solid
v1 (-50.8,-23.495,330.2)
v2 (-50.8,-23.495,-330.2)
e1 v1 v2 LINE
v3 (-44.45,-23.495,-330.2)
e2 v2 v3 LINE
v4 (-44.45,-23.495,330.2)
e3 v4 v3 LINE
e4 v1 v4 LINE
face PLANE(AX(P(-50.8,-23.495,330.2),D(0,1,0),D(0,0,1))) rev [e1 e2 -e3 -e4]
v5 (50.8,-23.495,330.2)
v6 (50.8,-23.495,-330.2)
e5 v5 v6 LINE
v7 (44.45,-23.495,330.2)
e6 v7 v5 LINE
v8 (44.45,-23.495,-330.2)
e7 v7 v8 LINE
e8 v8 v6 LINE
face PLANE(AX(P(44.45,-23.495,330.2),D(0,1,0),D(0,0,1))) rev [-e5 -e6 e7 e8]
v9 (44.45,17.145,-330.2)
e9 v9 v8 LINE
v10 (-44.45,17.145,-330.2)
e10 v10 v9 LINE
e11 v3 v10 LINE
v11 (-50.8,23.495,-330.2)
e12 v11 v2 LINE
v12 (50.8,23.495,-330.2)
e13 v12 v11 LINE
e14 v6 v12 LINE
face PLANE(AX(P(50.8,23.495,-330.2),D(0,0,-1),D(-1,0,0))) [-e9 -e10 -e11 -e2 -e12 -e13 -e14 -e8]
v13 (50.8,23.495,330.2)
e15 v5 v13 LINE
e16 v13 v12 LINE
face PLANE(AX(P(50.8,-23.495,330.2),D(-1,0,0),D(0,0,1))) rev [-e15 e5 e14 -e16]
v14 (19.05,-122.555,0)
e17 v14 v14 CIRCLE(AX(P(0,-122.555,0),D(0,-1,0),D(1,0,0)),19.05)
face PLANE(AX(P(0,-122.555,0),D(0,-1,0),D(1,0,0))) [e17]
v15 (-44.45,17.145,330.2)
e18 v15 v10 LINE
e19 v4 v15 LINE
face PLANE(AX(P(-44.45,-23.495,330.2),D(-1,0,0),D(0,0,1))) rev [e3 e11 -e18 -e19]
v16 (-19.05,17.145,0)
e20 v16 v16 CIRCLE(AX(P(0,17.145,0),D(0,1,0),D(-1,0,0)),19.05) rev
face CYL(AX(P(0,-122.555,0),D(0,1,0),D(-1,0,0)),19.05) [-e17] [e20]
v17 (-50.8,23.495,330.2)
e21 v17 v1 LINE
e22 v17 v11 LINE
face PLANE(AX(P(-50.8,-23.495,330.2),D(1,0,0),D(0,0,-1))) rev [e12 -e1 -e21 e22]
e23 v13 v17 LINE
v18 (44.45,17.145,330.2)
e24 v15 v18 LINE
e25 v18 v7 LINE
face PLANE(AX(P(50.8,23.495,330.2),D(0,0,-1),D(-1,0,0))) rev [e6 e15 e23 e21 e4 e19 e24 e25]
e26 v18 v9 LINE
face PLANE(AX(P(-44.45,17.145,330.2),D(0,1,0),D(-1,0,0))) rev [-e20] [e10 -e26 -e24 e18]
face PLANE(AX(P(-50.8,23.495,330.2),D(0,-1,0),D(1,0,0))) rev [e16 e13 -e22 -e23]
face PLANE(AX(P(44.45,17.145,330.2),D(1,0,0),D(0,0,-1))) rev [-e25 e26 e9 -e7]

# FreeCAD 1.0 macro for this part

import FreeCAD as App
import Part
import Sketcher

V = App.Vector
Q = App.Units.Quantity

doc = App.newDocument("Part")
body = doc.addObject("PartDesign::Body", "Body")

# Sketch on XY plane
sketch1 = body.newObject("Sketcher::SketchObject", "Sketch")
sketch1.AttachmentSupport = (doc.getObject("XY_Plane"), [""])
sketch1.MapMode = "FlatFace"
sketch1.addGeometry(Part.LineSegment(V(-51, -23, 0), V(-44, -23, 0)), False)
sketch1.addGeometry(Part.LineSegment(V(-44, -23, 0), V(-44, 17, 0)), False)
sketch1.addGeometry(Part.LineSegment(V(-44, 17, 0), V(44, 17, 0)), False)
sketch1.addGeometry(Part.LineSegment(V(44, 17, 0), V(44, -23, 0)), False)
sketch1.addGeometry(Part.LineSegment(V(44, -23, 0), V(51, -23, 0)), False)
sketch1.addGeometry(Part.LineSegment(V(51, -23, 0), V(51, 23, 0)), False)
sketch1.addGeometry(Part.LineSegment(V(51, 23, 0), V(-51, 23, 0)), False)
sketch1.addGeometry(Part.LineSegment(V(-51, 23, 0), V(-51, -23, 0)), False)
sketch1.addConstraint(Sketcher.Constraint("Coincident", 0, 2, 1, 1))
sketch1.addConstraint(Sketcher.Constraint("Coincident", 1, 2, 2, 1))
sketch1.addConstraint(Sketcher.Constraint("Coincident", 2, 2, 3, 1))
sketch1.addConstraint(Sketcher.Constraint("Coincident", 3, 2, 4, 1))
sketch1.addConstraint(Sketcher.Constraint("Coincident", 4, 2, 5, 1))
sketch1.addConstraint(Sketcher.Constraint("Coincident", 5, 2, 6, 1))
sketch1.addConstraint(Sketcher.Constraint("Coincident", 6, 2, 7, 1))
sketch1.addConstraint(Sketcher.Constraint("Coincident", 7, 2, 0, 1))
sketch1.addConstraint(Sketcher.Constraint("Horizontal", 0))
sketch1.addConstraint(Sketcher.Constraint("Vertical", 1))
sketch1.addConstraint(Sketcher.Constraint("Horizontal", 2))
sketch1.addConstraint(Sketcher.Constraint("Vertical", 3))
sketch1.addConstraint(Sketcher.Constraint("Horizontal", 4))
sketch1.addConstraint(Sketcher.Constraint("Vertical", 5))
sketch1.addConstraint(Sketcher.Constraint("Horizontal", 6))
sketch1.addConstraint(Sketcher.Constraint("Vertical", 7))
sketch1.addConstraint(Sketcher.Constraint("Symmetric", 4, 2, 6, 2, -1, 1))
sketch1.addConstraint(Sketcher.Constraint("Symmetric", 0, 2, 3, 2, -2))
sketch1.addConstraint(Sketcher.Constraint("DistanceX", 6, 2, 6, 1, Q("4 in")))
sketch1.addConstraint(Sketcher.Constraint("DistanceX", 2, 1, 2, 2, Q("3.5 in")))
sketch1.addConstraint(Sketcher.Constraint("DistanceY", 1, 1, 1, 2, Q("1.6 in")))
sketch1.addConstraint(Sketcher.Constraint("DistanceY", 5, 1, 5, 2, Q("1.85 in")))
pad1 = body.newObject("PartDesign::Pad", "Pad")
pad1.Profile = sketch1
pad1.Length = Q("26 in")
pad1.Midplane = True

# Sketch on XZ plane
sketch2 = body.newObject("Sketcher::SketchObject", "Sketch001")
sketch2.AttachmentSupport = (doc.getObject("XZ_Plane"), [""])
sketch2.MapMode = "FlatFace"
sketch2.AttachmentOffset = App.Placement(V(0, 0, -0.675 * 25.4), App.Rotation())
sketch2.addGeometry(Part.Circle(V(0, 0, 0), V(0, 0, 1), 19), False)
sketch2.addConstraint(Sketcher.Constraint("Coincident", 0, 3, -1, 1))
sketch2.addConstraint(Sketcher.Constraint("Diameter", 0, Q("1.5 in")))
pad2 = body.newObject("PartDesign::Pad", "Pad001")
pad2.Profile = sketch2
pad2.Length = Q("5.5 in")

doc.recompute()
